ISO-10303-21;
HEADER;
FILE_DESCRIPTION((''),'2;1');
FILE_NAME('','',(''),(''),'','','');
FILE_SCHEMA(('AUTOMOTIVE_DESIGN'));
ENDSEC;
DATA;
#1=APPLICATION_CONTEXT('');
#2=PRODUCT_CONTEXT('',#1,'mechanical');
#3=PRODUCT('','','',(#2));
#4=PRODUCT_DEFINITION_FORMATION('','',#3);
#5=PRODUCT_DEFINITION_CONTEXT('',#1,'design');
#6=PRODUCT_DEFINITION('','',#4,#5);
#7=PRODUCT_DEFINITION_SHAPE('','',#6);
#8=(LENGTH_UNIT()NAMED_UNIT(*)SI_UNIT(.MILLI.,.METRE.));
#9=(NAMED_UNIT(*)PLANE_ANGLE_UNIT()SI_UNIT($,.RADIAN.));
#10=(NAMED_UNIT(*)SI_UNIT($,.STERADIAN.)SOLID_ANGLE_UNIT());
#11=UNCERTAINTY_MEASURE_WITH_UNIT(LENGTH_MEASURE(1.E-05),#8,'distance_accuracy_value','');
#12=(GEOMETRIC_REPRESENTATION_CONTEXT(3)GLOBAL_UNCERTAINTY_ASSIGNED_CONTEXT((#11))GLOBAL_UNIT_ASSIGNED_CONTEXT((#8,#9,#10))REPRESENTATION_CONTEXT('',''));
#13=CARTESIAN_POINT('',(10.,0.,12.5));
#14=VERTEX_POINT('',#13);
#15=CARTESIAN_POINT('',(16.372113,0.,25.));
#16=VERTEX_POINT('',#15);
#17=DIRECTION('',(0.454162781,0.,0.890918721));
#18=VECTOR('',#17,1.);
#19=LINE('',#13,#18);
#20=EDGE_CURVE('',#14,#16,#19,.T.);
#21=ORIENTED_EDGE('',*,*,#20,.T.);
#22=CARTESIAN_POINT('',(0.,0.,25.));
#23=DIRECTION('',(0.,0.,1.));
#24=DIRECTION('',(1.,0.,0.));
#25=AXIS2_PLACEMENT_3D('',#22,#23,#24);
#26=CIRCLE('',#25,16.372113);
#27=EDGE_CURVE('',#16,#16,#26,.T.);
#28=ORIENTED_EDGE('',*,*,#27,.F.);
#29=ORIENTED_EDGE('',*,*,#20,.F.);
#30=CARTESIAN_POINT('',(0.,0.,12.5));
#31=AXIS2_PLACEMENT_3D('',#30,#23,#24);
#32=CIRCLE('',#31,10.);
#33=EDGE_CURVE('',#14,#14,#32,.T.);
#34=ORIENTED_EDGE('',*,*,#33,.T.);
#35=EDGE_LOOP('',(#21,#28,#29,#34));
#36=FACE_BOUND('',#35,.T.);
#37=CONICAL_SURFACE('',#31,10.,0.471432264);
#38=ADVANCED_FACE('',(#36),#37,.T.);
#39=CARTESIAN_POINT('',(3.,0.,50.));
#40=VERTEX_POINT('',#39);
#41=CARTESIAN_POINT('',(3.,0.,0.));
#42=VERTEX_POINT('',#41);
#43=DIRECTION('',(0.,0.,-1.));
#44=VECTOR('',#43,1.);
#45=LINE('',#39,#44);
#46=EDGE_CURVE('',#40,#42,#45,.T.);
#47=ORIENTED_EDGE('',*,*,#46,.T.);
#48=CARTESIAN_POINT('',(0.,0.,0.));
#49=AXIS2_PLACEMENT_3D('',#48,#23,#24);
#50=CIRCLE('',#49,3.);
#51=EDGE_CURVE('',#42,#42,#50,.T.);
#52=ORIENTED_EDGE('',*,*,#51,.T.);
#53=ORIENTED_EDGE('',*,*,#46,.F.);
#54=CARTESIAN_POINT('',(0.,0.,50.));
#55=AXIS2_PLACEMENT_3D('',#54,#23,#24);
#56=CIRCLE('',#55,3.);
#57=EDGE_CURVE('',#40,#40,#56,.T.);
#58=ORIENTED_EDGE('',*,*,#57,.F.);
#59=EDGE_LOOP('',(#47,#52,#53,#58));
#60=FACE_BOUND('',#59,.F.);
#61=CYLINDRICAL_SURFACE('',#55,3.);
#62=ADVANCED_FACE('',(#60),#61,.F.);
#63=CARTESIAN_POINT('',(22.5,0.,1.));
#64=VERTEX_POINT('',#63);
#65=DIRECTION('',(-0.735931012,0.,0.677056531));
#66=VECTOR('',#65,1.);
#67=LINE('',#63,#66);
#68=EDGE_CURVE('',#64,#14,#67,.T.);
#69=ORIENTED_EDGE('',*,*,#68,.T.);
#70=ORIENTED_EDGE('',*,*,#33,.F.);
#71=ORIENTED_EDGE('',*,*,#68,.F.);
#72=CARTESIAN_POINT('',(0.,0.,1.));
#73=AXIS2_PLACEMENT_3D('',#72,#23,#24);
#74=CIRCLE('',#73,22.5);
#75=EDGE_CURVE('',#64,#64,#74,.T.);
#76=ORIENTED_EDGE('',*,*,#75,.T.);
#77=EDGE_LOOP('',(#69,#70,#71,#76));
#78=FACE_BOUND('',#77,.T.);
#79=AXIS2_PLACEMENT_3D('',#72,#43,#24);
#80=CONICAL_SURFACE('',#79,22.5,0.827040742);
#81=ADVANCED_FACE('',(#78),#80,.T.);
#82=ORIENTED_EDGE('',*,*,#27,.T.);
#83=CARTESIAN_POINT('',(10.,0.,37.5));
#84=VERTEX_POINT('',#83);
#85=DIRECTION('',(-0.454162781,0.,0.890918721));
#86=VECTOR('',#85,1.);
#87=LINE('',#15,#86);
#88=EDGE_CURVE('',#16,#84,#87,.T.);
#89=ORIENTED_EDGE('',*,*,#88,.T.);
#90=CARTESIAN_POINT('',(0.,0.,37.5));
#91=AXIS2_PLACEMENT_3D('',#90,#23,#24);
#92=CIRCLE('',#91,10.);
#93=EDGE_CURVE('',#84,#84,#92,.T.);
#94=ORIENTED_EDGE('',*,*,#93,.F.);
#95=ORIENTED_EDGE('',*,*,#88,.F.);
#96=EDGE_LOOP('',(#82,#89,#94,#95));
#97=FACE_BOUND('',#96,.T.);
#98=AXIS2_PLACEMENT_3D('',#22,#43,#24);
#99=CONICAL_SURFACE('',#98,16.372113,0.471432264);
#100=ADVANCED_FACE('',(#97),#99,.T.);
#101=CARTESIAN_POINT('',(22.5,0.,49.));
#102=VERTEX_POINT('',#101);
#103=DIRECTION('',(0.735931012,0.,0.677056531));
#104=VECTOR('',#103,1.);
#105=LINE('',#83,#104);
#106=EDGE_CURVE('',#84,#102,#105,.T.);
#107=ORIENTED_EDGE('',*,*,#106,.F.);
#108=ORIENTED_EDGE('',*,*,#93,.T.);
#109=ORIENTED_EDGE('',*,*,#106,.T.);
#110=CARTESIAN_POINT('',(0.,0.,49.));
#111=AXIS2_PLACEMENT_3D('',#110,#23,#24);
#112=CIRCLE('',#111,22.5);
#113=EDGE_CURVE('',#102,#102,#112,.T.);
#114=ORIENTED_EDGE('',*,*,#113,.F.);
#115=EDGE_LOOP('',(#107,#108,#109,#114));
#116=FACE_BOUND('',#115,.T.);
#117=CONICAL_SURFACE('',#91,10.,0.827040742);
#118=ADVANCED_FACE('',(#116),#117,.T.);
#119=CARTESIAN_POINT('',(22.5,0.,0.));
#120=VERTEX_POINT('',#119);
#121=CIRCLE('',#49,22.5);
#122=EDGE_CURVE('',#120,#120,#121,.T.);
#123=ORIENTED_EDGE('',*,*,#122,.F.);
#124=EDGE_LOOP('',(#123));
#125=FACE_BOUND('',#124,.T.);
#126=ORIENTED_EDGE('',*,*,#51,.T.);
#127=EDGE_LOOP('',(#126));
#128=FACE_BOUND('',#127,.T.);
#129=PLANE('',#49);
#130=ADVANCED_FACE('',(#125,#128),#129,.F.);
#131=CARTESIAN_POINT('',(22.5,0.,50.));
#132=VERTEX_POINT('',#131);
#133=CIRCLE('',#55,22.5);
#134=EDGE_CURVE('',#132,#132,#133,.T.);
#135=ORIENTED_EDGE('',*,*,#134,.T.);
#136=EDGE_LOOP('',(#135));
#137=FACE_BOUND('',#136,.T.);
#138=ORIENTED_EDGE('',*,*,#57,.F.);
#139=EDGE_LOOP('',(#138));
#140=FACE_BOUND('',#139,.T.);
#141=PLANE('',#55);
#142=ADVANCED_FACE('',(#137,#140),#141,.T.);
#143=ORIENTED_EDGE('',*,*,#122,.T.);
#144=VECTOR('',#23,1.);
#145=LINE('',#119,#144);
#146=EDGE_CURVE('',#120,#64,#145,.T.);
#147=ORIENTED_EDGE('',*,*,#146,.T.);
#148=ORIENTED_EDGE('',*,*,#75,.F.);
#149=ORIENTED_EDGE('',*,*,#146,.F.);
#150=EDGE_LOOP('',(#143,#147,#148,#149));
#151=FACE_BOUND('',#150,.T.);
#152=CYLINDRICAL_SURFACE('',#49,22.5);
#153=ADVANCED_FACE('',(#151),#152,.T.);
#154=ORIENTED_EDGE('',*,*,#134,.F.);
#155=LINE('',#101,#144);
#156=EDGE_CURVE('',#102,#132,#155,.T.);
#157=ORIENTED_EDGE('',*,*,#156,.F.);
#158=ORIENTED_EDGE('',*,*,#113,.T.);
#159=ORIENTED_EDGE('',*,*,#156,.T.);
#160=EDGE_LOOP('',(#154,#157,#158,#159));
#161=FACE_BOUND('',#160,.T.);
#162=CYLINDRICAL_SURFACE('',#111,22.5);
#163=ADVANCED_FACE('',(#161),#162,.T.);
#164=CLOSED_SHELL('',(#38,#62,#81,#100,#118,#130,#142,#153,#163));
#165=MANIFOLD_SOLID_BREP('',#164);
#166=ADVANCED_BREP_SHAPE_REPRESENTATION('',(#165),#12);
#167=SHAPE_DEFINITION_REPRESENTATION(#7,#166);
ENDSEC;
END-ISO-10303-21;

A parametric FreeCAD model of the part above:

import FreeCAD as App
import Part
import Sketcher

V = App.Vector

doc = App.newDocument("Part")
body = doc.addObject("PartDesign::Body", "Body")

sketch1 = body.newObject("Sketcher::SketchObject", "Sketch")
sketch1.AttachmentSupport = (doc.getObject("XZ_Plane"), [""])
sketch1.MapMode = "FlatFace"
sketch1.addGeometry(Part.LineSegment(V(0, 0, 0), V(22.5, 0, 0)), False)
sketch1.addGeometry(Part.LineSegment(V(22.5, 0, 0), V(22.5, 1, 0)), False)
sketch1.addGeometry(Part.LineSegment(V(22.5, 1, 0), V(10, 12.5, 0)), False)
sketch1.addGeometry(Part.LineSegment(V(10, 12.5, 0), V(16.4, 25, 0)), False)
sketch1.addGeometry(Part.LineSegment(V(16.4, 25, 0), V(10, 37.5, 0)), False)
sketch1.addGeometry(Part.LineSegment(V(10, 37.5, 0), V(22.5, 49, 0)), False)
sketch1.addGeometry(Part.LineSegment(V(22.5, 49, 0), V(22.5, 50, 0)), False)
sketch1.addGeometry(Part.LineSegment(V(22.5, 50, 0), V(0, 50, 0)), False)
sketch1.addGeometry(Part.LineSegment(V(0, 50, 0), V(0, 0, 0)), False)
sketch1.addConstraint(Sketcher.Constraint("Coincident", 0, 2, 1, 1))
sketch1.addConstraint(Sketcher.Constraint("Coincident", 1, 2, 2, 1))
sketch1.addConstraint(Sketcher.Constraint("Coincident", 2, 2, 3, 1))
sketch1.addConstraint(Sketcher.Constraint("Coincident", 3, 2, 4, 1))
sketch1.addConstraint(Sketcher.Constraint("Coincident", 4, 2, 5, 1))
sketch1.addConstraint(Sketcher.Constraint("Coincident", 5, 2, 6, 1))
sketch1.addConstraint(Sketcher.Constraint("Coincident", 6, 2, 7, 1))
sketch1.addConstraint(Sketcher.Constraint("Coincident", 7, 2, 8, 1))
sketch1.addConstraint(Sketcher.Constraint("Coincident", 8, 2, 0, 1))
sketch1.addConstraint(Sketcher.Constraint("Horizontal", 0))
sketch1.addConstraint(Sketcher.Constraint("Vertical", 1))
sketch1.addConstraint(Sketcher.Constraint("Vertical", 6))
sketch1.addConstraint(Sketcher.Constraint("Horizontal", 7))
sketch1.addConstraint(Sketcher.Constraint("Vertical", 8))
sketch1.addConstraint(Sketcher.Constraint("Coincident", 8, 2, -1, 1))
sketch1.addConstraint(Sketcher.Constraint("Vertical", 2, 2, 4, 2))
sketch1.addConstraint(Sketcher.Constraint("Vertical", 1, 2, 5, 2))
sketch1.addConstraint(Sketcher.Constraint("Equal", 1, 6))
sketch1.addConstraint(Sketcher.Constraint("Equal", 3, 4))
sketch1.addConstraint(Sketcher.Constraint("Equal", 2, 5))
sketch1.addConstraint(Sketcher.Constraint("DistanceY", 1, 1, 1, 2, 1.0))
sketch1.addConstraint(Sketcher.Constraint("DistanceY", 8, 2, 8, 1, 50.0))
sketch1.addConstraint(Sketcher.Constraint("DistanceX", 0, 1, 0, 2, 22.5))
sketch1.addConstraint(Sketcher.Constraint("DistanceX", -1, 1, 2, 2, 10.0))
sketch1.addConstraint(Sketcher.Constraint("DistanceY", 2, 2, 4, 2, 25.0))
sketch1.addConstraint(Sketcher.Constraint("Distance", 3, 14.030461))
revolution = body.newObject("PartDesign::Revolution", "Revolution")
revolution.Profile = sketch1
revolution.ReferenceAxis = (sketch1, ["V_Axis"])
revolution.Angle = 360

sketch2 = body.newObject("Sketcher::SketchObject", "Sketch001")
sketch2.AttachmentSupport = (doc.getObject("XY_Plane"), [""])
sketch2.MapMode = "FlatFace"
sketch2.AttachmentOffset = App.Placement(V(0, 0, 50), App.Rotation())
sketch2.addGeometry(Part.Circle(V(0, 0, 0), V(0, 0, 1), 3), False)
sketch2.addConstraint(Sketcher.Constraint("Coincident", 0, 3, -1, 1))
sketch2.addConstraint(Sketcher.Constraint("Diameter", 0, 6.0))
pocket1 = body.newObject("PartDesign::Pocket", "Pocket")
pocket1.Profile = sketch2
pocket1.Length = 50

doc.recompute()
